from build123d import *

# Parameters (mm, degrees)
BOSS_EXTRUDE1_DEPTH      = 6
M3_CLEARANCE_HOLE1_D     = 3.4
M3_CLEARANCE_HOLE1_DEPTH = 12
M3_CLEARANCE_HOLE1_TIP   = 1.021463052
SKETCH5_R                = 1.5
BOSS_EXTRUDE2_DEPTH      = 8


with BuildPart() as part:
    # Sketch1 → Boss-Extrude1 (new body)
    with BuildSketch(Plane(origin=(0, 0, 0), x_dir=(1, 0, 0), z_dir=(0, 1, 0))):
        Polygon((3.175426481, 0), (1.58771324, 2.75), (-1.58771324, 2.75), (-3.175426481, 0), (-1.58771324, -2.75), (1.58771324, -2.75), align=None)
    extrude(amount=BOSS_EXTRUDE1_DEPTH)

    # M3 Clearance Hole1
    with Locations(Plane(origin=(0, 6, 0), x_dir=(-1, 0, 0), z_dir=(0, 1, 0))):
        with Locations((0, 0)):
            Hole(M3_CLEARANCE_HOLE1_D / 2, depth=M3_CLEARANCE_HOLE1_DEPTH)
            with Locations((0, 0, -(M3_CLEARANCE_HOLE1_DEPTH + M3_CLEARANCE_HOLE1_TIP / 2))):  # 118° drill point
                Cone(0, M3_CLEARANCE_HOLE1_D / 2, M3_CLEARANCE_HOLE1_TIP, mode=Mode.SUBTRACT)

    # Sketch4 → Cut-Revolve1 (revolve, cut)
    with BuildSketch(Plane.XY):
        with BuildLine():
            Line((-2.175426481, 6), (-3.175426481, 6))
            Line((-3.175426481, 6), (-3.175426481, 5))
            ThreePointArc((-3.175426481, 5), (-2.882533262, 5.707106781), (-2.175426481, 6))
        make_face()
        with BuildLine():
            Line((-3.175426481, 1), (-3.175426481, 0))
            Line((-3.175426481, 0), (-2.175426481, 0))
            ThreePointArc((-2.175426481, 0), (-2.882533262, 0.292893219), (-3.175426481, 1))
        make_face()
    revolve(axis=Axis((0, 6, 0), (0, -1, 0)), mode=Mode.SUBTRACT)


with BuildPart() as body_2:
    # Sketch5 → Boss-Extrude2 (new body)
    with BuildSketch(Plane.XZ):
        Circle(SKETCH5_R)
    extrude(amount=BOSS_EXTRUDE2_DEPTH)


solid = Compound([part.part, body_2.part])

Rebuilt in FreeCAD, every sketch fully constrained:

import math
import FreeCAD as App
import Part
import Sketcher
Q = App.Units.Quantity


def add_polygon(sketch, points):
    """Adds a closed chain of lines whose ends are joined by coincident constraints."""
    first, n = sketch.GeometryCount, len(points)
    for a, b in zip(points, points[1:] + points[:1]):
        sketch.addGeometry(Part.LineSegment(App.Vector(*a, 0), App.Vector(*b, 0)), False)
    for i in range(n):
        sketch.addConstraint(Sketcher.Constraint("Coincident", first + i, 2, first + (i + 1) % n, 1))

doc = App.newDocument("Part")
body = doc.addObject("PartDesign::Body", "Body")

# Sketch on XZ plane
sketch1 = body.newObject("Sketcher::SketchObject", "Sketch")
sketch1.AttachmentSupport = (doc.getObject("XZ_Plane"), [""])
sketch1.MapMode = "FlatFace"
add_polygon(sketch1, [(3.2, 0), (1.6, -2.8), (-1.6, -2.8), (-3.2, 0), (-1.6, 2.8), (1.6, 2.8)])  # lines 0-5
sketch1.addConstraint([
    Sketcher.Constraint("Horizontal", 1),
    Sketcher.Constraint("Horizontal", 4),
    Sketcher.Constraint("Symmetric", 0, 2, 3, 2, -1, 1),
    Sketcher.Constraint("Symmetric", 2, 2, 5, 2, -1, 1),
    Sketcher.Constraint("PointOnObject", 2, 2, -1),
    Sketcher.Constraint("Parallel", 2, 5),
    Sketcher.Constraint("Vertical", 1, 2, 3, 2),
    Sketcher.Constraint("Angle", 0, Q("-120 deg")),
    Sketcher.Constraint("DistanceY", 1, 2, 3, 2, Q("5.5 mm")),
    Sketcher.Constraint("DistanceX", 1, 2, 1, 1, Q("3.175426 mm")),
])
pad1 = body.newObject("PartDesign::Pad", "Pad")
pad1.Profile = sketch1
pad1.Length = 6
pad1.Reversed = True

# Sketch on XZ plane
sketch2 = body.newObject("Sketcher::SketchObject", "Sketch001")
sketch2.AttachmentSupport = (doc.getObject("XZ_Plane"), [""])
sketch2.MapMode = "FlatFace"
sketch2.AttachmentOffset = App.Placement(App.Vector(0, 0, -6), App.Rotation())
sketch2.addGeometry(Part.Circle(App.Vector(0, 0, 0), App.Vector(0, 0, 1), 1.7), False)
sketch2.addConstraint([
    Sketcher.Constraint("Coincident", 0, 3, -1, 1),
    Sketcher.Constraint("Diameter", 0, Q("3.4 mm")),
])
doc.recompute()
hole = body.newObject("PartDesign::Hole", "Hole")
hole.Profile = sketch2
hole.ThreadType = "None"
hole.Diameter = 3.4
hole.DepthType = "Dimension"
hole.Depth = 12
hole.DrillPoint = "Angled"
hole.DrillPointAngle = 118
hole.Reversed = True

# Sketch on XY plane
sketch3 = body.newObject("Sketcher::SketchObject", "Sketch002")
sketch3.AttachmentSupport = (doc.getObject("XY_Plane"), [""])
sketch3.MapMode = "FlatFace"
sketch3.addGeometry([
    Part.LineSegment(App.Vector(-2.2, 6, 0), App.Vector(-3.2, 6, 0)),  # 0
    Part.LineSegment(App.Vector(-3.2, 6, 0), App.Vector(-3.2, 5, 0)),  # 1
    Part.ArcOfCircle(Part.Circle(App.Vector(-2.2, 5, 0), App.Vector(0, 0, 1), 1), math.radians(90), math.radians(180)),  # 2
    Part.LineSegment(App.Vector(-3.2, 1, 0), App.Vector(-3.2, 0, 0)),  # 3
    Part.LineSegment(App.Vector(-3.2, 0, 0), App.Vector(-2.2, 0, 0)),  # 4
    Part.ArcOfCircle(Part.Circle(App.Vector(-2.2, 1, 0), App.Vector(0, 0, 1), 1), math.radians(-180), math.radians(-90)),  # 5
], False)
sketch3.addConstraint([
    Sketcher.Constraint("Coincident", 0, 2, 1, 1),
    Sketcher.Constraint("Tangent", 1, 2, 2, 2),
    Sketcher.Constraint("Tangent", 2, 1, 0, 1),
    Sketcher.Constraint("Coincident", 3, 2, 4, 1),
    Sketcher.Constraint("Tangent", 4, 2, 5, 2),
    Sketcher.Constraint("Tangent", 5, 1, 3, 1),
    Sketcher.Constraint("Horizontal", 0),
    Sketcher.Constraint("Vertical", 1),
    Sketcher.Constraint("Vertical", 3),
    Sketcher.Constraint("Horizontal", 4),
    Sketcher.Constraint("Equal", 2, 5),
    Sketcher.Constraint("PointOnObject", 3, 2, -1),
    Sketcher.Constraint("Vertical", 2, 3, 5, 3),
    Sketcher.Constraint("Radius", 2, Q("1 mm")),
    Sketcher.Constraint("DistanceY", -1, 1, 2, 3, Q("5 mm")),
    Sketcher.Constraint("DistanceX", 2, 3, -1, 1, Q("2.175426 mm")),
])
groove = body.newObject("PartDesign::Groove", "Groove")
groove.Profile = sketch3
groove.ReferenceAxis = (sketch3, ["V_Axis"])
groove.Angle = 360
body2 = doc.addObject("PartDesign::Body", "Body001")

# Sketch on XZ plane
sketch4 = body2.newObject("Sketcher::SketchObject", "Sketch003")
sketch4.AttachmentSupport = (doc.getObject("XZ_Plane001"), [""])
sketch4.MapMode = "FlatFace"
sketch4.addGeometry(Part.Circle(App.Vector(0, 0, 0), App.Vector(0, 0, 1), 1.5), False)
sketch4.addConstraint([
    Sketcher.Constraint("Coincident", 0, 3, -1, 1),
    Sketcher.Constraint("Diameter", 0, Q("3 mm")),
])
pad2 = body2.newObject("PartDesign::Pad", "Pad001")
pad2.Profile = sketch4
pad2.Length = 8

doc.recompute()
